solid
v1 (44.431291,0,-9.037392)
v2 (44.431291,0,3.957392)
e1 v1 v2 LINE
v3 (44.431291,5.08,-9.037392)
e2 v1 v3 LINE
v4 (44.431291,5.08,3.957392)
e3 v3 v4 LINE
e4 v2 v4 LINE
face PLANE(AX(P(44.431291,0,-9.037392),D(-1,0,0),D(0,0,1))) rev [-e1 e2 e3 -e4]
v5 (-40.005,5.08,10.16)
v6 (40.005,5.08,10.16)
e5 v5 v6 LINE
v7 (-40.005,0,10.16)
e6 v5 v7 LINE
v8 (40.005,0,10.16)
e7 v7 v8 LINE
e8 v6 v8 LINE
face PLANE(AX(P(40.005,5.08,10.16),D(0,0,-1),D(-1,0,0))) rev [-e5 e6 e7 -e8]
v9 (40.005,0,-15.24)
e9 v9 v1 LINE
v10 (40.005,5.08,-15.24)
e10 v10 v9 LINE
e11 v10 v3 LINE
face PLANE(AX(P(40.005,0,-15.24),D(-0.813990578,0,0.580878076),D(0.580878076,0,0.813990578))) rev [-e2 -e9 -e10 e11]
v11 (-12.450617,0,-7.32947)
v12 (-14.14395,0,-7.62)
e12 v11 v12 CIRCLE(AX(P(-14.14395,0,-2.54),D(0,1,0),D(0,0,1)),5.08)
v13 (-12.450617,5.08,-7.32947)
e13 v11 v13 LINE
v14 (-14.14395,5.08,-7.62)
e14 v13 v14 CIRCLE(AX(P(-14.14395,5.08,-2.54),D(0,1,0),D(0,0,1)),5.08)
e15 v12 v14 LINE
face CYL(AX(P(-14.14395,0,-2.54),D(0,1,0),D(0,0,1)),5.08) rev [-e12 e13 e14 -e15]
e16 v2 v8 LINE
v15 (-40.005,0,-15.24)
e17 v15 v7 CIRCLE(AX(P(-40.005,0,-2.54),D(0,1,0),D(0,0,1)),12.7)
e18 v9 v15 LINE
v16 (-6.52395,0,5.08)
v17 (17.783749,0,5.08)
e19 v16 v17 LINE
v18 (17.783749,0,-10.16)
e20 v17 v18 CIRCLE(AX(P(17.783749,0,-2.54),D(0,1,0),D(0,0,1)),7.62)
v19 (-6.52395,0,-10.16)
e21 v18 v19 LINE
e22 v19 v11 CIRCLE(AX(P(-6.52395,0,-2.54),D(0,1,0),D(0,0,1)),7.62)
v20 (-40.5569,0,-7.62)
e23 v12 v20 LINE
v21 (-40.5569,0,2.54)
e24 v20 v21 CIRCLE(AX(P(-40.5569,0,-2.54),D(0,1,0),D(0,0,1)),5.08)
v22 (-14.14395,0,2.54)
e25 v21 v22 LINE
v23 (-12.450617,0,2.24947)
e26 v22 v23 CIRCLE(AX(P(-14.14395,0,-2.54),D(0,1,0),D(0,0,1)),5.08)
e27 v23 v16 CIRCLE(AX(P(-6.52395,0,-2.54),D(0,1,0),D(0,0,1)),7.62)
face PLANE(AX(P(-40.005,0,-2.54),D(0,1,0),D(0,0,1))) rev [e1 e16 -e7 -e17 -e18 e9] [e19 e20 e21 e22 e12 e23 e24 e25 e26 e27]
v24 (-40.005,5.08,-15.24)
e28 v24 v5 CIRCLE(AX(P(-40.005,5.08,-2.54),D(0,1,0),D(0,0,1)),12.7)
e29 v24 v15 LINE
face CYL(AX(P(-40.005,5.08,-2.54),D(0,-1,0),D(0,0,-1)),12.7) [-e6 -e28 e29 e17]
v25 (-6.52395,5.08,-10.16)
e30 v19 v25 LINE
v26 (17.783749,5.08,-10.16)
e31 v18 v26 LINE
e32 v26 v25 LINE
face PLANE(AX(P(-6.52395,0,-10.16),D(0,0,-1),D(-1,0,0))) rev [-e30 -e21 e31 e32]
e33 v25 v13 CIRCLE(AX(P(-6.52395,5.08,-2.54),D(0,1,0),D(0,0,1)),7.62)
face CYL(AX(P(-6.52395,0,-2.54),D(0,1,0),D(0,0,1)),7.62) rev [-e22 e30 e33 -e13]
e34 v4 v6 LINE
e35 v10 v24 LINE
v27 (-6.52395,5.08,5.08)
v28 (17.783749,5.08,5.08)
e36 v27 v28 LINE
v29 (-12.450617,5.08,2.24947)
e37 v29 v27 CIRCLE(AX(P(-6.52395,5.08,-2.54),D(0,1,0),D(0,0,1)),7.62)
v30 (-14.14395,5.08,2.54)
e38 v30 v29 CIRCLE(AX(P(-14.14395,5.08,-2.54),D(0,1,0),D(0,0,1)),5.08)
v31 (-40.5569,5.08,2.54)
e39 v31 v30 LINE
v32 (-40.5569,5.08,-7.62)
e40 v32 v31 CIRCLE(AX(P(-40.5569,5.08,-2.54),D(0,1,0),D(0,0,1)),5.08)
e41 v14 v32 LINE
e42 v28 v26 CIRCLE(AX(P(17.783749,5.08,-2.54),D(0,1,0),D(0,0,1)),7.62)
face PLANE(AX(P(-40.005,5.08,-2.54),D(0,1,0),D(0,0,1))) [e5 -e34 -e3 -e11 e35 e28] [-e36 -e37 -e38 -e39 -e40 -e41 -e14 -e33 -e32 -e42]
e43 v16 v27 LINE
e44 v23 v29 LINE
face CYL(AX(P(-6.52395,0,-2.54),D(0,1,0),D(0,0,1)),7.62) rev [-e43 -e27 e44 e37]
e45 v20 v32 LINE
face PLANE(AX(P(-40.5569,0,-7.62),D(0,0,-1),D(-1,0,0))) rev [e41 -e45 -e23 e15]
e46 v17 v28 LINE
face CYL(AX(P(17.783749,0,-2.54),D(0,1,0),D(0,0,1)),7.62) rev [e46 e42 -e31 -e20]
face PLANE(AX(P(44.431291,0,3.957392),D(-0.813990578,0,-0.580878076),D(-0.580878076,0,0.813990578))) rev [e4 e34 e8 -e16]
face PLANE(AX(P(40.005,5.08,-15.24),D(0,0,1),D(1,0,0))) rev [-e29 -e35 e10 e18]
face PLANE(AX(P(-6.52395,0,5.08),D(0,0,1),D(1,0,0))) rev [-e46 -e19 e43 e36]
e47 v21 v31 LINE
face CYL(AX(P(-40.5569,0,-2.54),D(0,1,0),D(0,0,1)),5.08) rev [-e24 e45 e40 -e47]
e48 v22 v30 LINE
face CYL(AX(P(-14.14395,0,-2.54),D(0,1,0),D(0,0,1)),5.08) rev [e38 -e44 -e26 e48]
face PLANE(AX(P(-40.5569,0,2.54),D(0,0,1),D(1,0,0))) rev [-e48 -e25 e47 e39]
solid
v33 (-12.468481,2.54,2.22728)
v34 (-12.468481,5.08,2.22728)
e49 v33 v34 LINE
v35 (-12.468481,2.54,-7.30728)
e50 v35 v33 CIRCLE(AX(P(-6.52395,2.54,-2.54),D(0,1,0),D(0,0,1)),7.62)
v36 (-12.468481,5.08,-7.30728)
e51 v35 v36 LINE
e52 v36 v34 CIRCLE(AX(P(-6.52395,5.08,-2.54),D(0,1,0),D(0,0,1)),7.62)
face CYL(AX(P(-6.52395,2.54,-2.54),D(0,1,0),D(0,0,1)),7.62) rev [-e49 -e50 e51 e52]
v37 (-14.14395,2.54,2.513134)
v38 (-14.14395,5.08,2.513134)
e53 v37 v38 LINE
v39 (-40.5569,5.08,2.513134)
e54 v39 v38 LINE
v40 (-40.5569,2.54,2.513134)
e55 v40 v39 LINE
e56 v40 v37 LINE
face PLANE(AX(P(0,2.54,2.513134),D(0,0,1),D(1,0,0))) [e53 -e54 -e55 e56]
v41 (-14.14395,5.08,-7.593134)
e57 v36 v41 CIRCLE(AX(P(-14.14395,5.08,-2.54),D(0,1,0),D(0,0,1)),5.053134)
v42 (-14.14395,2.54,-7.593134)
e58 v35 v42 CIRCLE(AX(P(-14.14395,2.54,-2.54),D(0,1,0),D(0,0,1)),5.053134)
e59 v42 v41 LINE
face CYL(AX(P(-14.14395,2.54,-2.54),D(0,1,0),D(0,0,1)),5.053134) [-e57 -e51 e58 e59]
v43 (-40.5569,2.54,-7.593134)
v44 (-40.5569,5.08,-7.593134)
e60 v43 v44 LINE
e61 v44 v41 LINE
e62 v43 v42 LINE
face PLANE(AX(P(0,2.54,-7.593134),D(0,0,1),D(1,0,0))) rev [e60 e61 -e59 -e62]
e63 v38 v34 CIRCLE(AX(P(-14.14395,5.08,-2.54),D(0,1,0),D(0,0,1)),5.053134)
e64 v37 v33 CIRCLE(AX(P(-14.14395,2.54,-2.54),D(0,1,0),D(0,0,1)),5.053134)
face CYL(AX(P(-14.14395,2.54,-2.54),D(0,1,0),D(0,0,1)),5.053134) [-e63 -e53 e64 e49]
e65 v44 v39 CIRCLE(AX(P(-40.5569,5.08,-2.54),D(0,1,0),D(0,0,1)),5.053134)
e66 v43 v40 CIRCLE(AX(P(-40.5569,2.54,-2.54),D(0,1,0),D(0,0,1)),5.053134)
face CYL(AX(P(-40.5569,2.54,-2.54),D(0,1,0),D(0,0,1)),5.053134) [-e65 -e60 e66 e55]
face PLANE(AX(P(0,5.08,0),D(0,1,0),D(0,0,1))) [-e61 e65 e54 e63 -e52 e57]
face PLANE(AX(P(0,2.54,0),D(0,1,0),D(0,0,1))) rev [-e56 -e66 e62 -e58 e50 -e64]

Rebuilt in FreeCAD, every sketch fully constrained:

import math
import FreeCAD as App
import Part
import Sketcher
Q = App.Units.Quantity

doc = App.newDocument("Part")
body = doc.addObject("PartDesign::Body", "Body")

# Sketch on XZ plane
sketch1 = body.newObject("Sketcher::SketchObject", "Sketch")
sketch1.AttachmentSupport = (doc.getObject("XZ_Plane"), [""])
sketch1.MapMode = "FlatFace"
sketch1.addGeometry([
    Part.LineSegment(App.Vector(-40, 10, 0), App.Vector(40, 10, 0)),
    Part.ArcOfCircle(Part.Circle(App.Vector(40, -3, 0), App.Vector(0, 0, 1), 13), math.radians(-90), math.radians(90)),
    Part.LineSegment(App.Vector(40, -15, 0), App.Vector(-40, -15, 0)),
    Part.ArcOfCircle(Part.Circle(App.Vector(-40, -3, 0), App.Vector(0, 0, 1), 13), math.radians(90), math.radians(270)),
], False)
sketch1.addConstraint([
    Sketcher.Constraint("Tangent", 0, 2, 1, 2),
    Sketcher.Constraint("Tangent", 1, 1, 2, 1),
    Sketcher.Constraint("Tangent", 2, 2, 3, 2),
    Sketcher.Constraint("Tangent", 3, 1, 0, 1),
    Sketcher.Constraint("Horizontal", 0),
    Sketcher.Constraint("Horizontal", 2),
    Sketcher.Constraint("Radius", 1, Q("0.5 in")),
    Sketcher.Constraint("DistanceX", 0, 1, 0, 2, Q("3.15 in")),
    Sketcher.Constraint("DistanceY", 1, 3, -1, 1, Q("0.1 in")),
    Sketcher.Constraint("DistanceX", -1, 1, 1, 3, Q("1.575 in")),
])
pad1 = body.newObject("PartDesign::Pad", "Pad")
pad1.Profile = sketch1
pad1.Length = Q("0.2 in")
pad1.Reversed = True

# Sketch on XZ plane
sketch2 = body.newObject("Sketcher::SketchObject", "Sketch001")
sketch2.AttachmentSupport = (doc.getObject("XZ_Plane"), [""])
sketch2.MapMode = "FlatFace"
sketch2.AttachmentOffset = App.Placement(App.Vector(0, 0, -0.2 * 25.4), App.Rotation())
sketch2.addGeometry([
    Part.LineSegment(App.Vector(17.8, -10.2, 0), App.Vector(-6.5, -10.2, 0)),  # 0
    Part.ArcOfCircle(Part.Circle(App.Vector(-6.5, -2.5, 0), App.Vector(0, 0, 1), 7.6), math.radians(-141), math.radians(-90)),  # 1
    Part.ArcOfCircle(Part.Circle(App.Vector(-14.1, -2.5, 0), App.Vector(0, 0, 1), 5.1), math.radians(-90), math.radians(-70.53)),  # 2
    Part.LineSegment(App.Vector(-14.1, -7.6, 0), App.Vector(-40.6, -7.6, 0)),  # 3
    Part.ArcOfCircle(Part.Circle(App.Vector(-40.6, -2.5, 0), App.Vector(0, 0, 1), 5.1), math.radians(90), math.radians(270)),  # 4
    Part.LineSegment(App.Vector(-40.6, 2.5, 0), App.Vector(-14.1, 2.5, 0)),  # 5
    Part.ArcOfCircle(Part.Circle(App.Vector(-14.1, -2.5, 0), App.Vector(0, 0, 1), 5.1), math.radians(70.53), math.radians(90)),  # 6
    Part.ArcOfCircle(Part.Circle(App.Vector(-6.5, -2.5, 0), App.Vector(0, 0, 1), 7.6), math.radians(90), math.radians(141)),  # 7
    Part.LineSegment(App.Vector(-6.5, 5.1, 0), App.Vector(17.8, 5.1, 0)),  # 8
    Part.ArcOfCircle(Part.Circle(App.Vector(17.8, -2.5, 0), App.Vector(0, 0, 1), 7.6), math.radians(-90), math.radians(90)),  # 9
], False)
sketch2.addConstraint([
    Sketcher.Constraint("Tangent", 0, 2, 1, 2),
    Sketcher.Constraint("Coincident", 1, 1, 2, 2),
    Sketcher.Constraint("Tangent", 2, 1, 3, 1),
    Sketcher.Constraint("Tangent", 3, 2, 4, 2),
    Sketcher.Constraint("Tangent", 4, 1, 5, 1),
    Sketcher.Constraint("Tangent", 5, 2, 6, 2),
    Sketcher.Constraint("Coincident", 6, 1, 7, 2),
    Sketcher.Constraint("Tangent", 7, 1, 8, 1),
    Sketcher.Constraint("Tangent", 8, 2, 9, 2),
    Sketcher.Constraint("Tangent", 9, 1, 0, 1),
    Sketcher.Constraint("Horizontal", 0),
    Sketcher.Constraint("Horizontal", 3),
    Sketcher.Constraint("Horizontal", 5),
    Sketcher.Constraint("Horizontal", 8),
    Sketcher.Constraint("Coincident", 6, 3, 2, 3),
    Sketcher.Constraint("Coincident", 7, 3, 1, 3),
    Sketcher.Constraint("Equal", 2, 4),
    Sketcher.Constraint("Equal", 1, 7),
    Sketcher.Constraint("Horizontal", 1, 3, 2, 3),
    Sketcher.Constraint("Radius", 1, Q("0.3 in")),
    Sketcher.Constraint("Radius", 2, Q("0.2 in")),
    Sketcher.Constraint("DistanceY", 1, 3, -1, 1, Q("0.1 in")),
    Sketcher.Constraint("DistanceX", 2, 3, 1, 3, Q("0.3 in")),
    Sketcher.Constraint("DistanceX", 0, 2, 0, 1, 24.3077),
    Sketcher.Constraint("DistanceX", 3, 2, 3, 1, 26.41295),
    Sketcher.Constraint("DistanceX", 4, 3, -1, 1, 40.5569),
])
pocket1 = body.newObject("PartDesign::Pocket", "Pocket")
pocket1.Profile = sketch2
pocket1.Type = "ThroughAll"
pocket1.Reversed = True

# Sketch on XZ plane
sketch3 = body.newObject("Sketcher::SketchObject", "Sketch002")
sketch3.AttachmentSupport = (doc.getObject("XZ_Plane"), [""])
sketch3.MapMode = "FlatFace"
sketch3.AttachmentOffset = App.Placement(App.Vector(0, 0, -0.2 * 25.4), App.Rotation())
sketch3.addGeometry([
    Part.LineSegment(App.Vector(40, -15.2, 0), App.Vector(44.4, -9, 0)),  # 0
    Part.LineSegment(App.Vector(44.4, -9, 0), App.Vector(44.4, 4, 0)),  # 1
    Part.LineSegment(App.Vector(44.4, 4, 0), App.Vector(40, 10.2, 0)),  # 2
    Part.LineSegment(App.Vector(40, 10.2, 0), App.Vector(40, 12.2, 0)),  # 3
    Part.LineSegment(App.Vector(40, 12.2, 0), App.Vector(70.3, 12.2, 0)),  # 4
    Part.LineSegment(App.Vector(70.3, 12.2, 0), App.Vector(70.3, -15.2, 0)),  # 5
    Part.LineSegment(App.Vector(70.3, -15.2, 0), App.Vector(40, -15.2, 0)),  # 6
], False)
sketch3.addConstraint([
    Sketcher.Constraint("Coincident", 0, 2, 1, 1),
    Sketcher.Constraint("Coincident", 1, 2, 2, 1),
    Sketcher.Constraint("Coincident", 2, 2, 3, 1),
    Sketcher.Constraint("Coincident", 3, 2, 4, 1),
    Sketcher.Constraint("Coincident", 4, 2, 5, 1),
    Sketcher.Constraint("Coincident", 5, 2, 6, 1),
    Sketcher.Constraint("Coincident", 6, 2, 0, 1),
    Sketcher.Constraint("Vertical", 1),
    Sketcher.Constraint("Vertical", 3),
    Sketcher.Constraint("Horizontal", 4),
    Sketcher.Constraint("Vertical", 5),
    Sketcher.Constraint("Horizontal", 6),
    Sketcher.Constraint("Vertical", 3, 2, 6, 2),
    Sketcher.Constraint("Equal", 0, 2),
    Sketcher.Constraint("DistanceY", 5, 2, 2, 2, Q("1 in")),
    Sketcher.Constraint("Distance", 0, Q("0.3 in")),
    Sketcher.Constraint("DistanceY", -1, 1, 2, 2, Q("0.4 in")),
    Sketcher.Constraint("DistanceX", -1, 1, 2, 2, Q("1.575 in")),
    Sketcher.Constraint("DistanceX", 4, 1, 4, 2, 30.309575),
    Sketcher.Constraint("DistanceY", 1, 1, 1, 2, 12.994784),
    Sketcher.Constraint("DistanceY", 3, 1, 3, 2, 2.067543),
])
pocket2 = body.newObject("PartDesign::Pocket", "Pocket001")
pocket2.Profile = sketch3
pocket2.Type = "ThroughAll"
pocket2.Reversed = True
body2 = doc.addObject("PartDesign::Body", "Body001")

# Sketch on XZ plane
sketch4 = body2.newObject("Sketcher::SketchObject", "Sketch003")
sketch4.AttachmentSupport = (doc.getObject("XZ_Plane001"), [""])
sketch4.MapMode = "FlatFace"
sketch4.AttachmentOffset = App.Placement(App.Vector(0, 0, -0.2 * 25.4), App.Rotation())
sketch4.addGeometry([
    Part.LineSegment(App.Vector(-14.1, -7.6, 0), App.Vector(-40.6, -7.6, 0)),  # 0
    Part.ArcOfCircle(Part.Circle(App.Vector(-40.6, -2.5, 0), App.Vector(0, 0, 1), 5.1), math.radians(90), math.radians(270)),  # 1
    Part.LineSegment(App.Vector(-40.6, 2.5, 0), App.Vector(-14.1, 2.5, 0)),  # 2
    Part.ArcOfCircle(Part.Circle(App.Vector(-14.1, -2.5, 0), App.Vector(0, 0, 1), 5.1), math.radians(70.64), math.radians(90)),  # 3
    Part.ArcOfCircle(Part.Circle(App.Vector(-6.5, -2.5, 0), App.Vector(0, 0, 1), 7.6), math.radians(141), math.radians(219)),  # 4
    Part.ArcOfCircle(Part.Circle(App.Vector(-14.1, -2.5, 0), App.Vector(0, 0, 1), 5.1), math.radians(-90), math.radians(-70.64)),  # 5
], False)
sketch4.addConstraint([
    Sketcher.Constraint("Tangent", 0, 2, 1, 2),
    Sketcher.Constraint("Tangent", 1, 1, 2, 1),
    Sketcher.Constraint("Tangent", 2, 2, 3, 2),
    Sketcher.Constraint("Coincident", 3, 1, 4, 1),
    Sketcher.Constraint("Coincident", 4, 2, 5, 2),
    Sketcher.Constraint("Tangent", 5, 1, 0, 1),
    Sketcher.Constraint("Horizontal", 0),
    Sketcher.Constraint("Horizontal", 2),
    Sketcher.Constraint("Coincident", 5, 3, 3, 3),
    Sketcher.Constraint("Equal", 1, 3),
    Sketcher.Constraint("Horizontal", 3, 3, 4, 3),
    Sketcher.Constraint("Radius", 4, Q("0.3 in")),
    Sketcher.Constraint("DistanceY", 1, 3, -1, 1, Q("0.1 in")),
    Sketcher.Constraint("DistanceX", 3, 3, 4, 3, Q("0.3 in")),
    Sketcher.Constraint("Radius", 1, 5.053134),
    Sketcher.Constraint("DistanceX", 0, 2, 0, 1, 26.41295),
    Sketcher.Constraint("DistanceX", 1, 3, -1, 1, 40.5569),
])
pad2 = body2.newObject("PartDesign::Pad", "Pad001")
pad2.Profile = sketch4
pad2.Length = Q("0.1 in")

doc.recompute()
